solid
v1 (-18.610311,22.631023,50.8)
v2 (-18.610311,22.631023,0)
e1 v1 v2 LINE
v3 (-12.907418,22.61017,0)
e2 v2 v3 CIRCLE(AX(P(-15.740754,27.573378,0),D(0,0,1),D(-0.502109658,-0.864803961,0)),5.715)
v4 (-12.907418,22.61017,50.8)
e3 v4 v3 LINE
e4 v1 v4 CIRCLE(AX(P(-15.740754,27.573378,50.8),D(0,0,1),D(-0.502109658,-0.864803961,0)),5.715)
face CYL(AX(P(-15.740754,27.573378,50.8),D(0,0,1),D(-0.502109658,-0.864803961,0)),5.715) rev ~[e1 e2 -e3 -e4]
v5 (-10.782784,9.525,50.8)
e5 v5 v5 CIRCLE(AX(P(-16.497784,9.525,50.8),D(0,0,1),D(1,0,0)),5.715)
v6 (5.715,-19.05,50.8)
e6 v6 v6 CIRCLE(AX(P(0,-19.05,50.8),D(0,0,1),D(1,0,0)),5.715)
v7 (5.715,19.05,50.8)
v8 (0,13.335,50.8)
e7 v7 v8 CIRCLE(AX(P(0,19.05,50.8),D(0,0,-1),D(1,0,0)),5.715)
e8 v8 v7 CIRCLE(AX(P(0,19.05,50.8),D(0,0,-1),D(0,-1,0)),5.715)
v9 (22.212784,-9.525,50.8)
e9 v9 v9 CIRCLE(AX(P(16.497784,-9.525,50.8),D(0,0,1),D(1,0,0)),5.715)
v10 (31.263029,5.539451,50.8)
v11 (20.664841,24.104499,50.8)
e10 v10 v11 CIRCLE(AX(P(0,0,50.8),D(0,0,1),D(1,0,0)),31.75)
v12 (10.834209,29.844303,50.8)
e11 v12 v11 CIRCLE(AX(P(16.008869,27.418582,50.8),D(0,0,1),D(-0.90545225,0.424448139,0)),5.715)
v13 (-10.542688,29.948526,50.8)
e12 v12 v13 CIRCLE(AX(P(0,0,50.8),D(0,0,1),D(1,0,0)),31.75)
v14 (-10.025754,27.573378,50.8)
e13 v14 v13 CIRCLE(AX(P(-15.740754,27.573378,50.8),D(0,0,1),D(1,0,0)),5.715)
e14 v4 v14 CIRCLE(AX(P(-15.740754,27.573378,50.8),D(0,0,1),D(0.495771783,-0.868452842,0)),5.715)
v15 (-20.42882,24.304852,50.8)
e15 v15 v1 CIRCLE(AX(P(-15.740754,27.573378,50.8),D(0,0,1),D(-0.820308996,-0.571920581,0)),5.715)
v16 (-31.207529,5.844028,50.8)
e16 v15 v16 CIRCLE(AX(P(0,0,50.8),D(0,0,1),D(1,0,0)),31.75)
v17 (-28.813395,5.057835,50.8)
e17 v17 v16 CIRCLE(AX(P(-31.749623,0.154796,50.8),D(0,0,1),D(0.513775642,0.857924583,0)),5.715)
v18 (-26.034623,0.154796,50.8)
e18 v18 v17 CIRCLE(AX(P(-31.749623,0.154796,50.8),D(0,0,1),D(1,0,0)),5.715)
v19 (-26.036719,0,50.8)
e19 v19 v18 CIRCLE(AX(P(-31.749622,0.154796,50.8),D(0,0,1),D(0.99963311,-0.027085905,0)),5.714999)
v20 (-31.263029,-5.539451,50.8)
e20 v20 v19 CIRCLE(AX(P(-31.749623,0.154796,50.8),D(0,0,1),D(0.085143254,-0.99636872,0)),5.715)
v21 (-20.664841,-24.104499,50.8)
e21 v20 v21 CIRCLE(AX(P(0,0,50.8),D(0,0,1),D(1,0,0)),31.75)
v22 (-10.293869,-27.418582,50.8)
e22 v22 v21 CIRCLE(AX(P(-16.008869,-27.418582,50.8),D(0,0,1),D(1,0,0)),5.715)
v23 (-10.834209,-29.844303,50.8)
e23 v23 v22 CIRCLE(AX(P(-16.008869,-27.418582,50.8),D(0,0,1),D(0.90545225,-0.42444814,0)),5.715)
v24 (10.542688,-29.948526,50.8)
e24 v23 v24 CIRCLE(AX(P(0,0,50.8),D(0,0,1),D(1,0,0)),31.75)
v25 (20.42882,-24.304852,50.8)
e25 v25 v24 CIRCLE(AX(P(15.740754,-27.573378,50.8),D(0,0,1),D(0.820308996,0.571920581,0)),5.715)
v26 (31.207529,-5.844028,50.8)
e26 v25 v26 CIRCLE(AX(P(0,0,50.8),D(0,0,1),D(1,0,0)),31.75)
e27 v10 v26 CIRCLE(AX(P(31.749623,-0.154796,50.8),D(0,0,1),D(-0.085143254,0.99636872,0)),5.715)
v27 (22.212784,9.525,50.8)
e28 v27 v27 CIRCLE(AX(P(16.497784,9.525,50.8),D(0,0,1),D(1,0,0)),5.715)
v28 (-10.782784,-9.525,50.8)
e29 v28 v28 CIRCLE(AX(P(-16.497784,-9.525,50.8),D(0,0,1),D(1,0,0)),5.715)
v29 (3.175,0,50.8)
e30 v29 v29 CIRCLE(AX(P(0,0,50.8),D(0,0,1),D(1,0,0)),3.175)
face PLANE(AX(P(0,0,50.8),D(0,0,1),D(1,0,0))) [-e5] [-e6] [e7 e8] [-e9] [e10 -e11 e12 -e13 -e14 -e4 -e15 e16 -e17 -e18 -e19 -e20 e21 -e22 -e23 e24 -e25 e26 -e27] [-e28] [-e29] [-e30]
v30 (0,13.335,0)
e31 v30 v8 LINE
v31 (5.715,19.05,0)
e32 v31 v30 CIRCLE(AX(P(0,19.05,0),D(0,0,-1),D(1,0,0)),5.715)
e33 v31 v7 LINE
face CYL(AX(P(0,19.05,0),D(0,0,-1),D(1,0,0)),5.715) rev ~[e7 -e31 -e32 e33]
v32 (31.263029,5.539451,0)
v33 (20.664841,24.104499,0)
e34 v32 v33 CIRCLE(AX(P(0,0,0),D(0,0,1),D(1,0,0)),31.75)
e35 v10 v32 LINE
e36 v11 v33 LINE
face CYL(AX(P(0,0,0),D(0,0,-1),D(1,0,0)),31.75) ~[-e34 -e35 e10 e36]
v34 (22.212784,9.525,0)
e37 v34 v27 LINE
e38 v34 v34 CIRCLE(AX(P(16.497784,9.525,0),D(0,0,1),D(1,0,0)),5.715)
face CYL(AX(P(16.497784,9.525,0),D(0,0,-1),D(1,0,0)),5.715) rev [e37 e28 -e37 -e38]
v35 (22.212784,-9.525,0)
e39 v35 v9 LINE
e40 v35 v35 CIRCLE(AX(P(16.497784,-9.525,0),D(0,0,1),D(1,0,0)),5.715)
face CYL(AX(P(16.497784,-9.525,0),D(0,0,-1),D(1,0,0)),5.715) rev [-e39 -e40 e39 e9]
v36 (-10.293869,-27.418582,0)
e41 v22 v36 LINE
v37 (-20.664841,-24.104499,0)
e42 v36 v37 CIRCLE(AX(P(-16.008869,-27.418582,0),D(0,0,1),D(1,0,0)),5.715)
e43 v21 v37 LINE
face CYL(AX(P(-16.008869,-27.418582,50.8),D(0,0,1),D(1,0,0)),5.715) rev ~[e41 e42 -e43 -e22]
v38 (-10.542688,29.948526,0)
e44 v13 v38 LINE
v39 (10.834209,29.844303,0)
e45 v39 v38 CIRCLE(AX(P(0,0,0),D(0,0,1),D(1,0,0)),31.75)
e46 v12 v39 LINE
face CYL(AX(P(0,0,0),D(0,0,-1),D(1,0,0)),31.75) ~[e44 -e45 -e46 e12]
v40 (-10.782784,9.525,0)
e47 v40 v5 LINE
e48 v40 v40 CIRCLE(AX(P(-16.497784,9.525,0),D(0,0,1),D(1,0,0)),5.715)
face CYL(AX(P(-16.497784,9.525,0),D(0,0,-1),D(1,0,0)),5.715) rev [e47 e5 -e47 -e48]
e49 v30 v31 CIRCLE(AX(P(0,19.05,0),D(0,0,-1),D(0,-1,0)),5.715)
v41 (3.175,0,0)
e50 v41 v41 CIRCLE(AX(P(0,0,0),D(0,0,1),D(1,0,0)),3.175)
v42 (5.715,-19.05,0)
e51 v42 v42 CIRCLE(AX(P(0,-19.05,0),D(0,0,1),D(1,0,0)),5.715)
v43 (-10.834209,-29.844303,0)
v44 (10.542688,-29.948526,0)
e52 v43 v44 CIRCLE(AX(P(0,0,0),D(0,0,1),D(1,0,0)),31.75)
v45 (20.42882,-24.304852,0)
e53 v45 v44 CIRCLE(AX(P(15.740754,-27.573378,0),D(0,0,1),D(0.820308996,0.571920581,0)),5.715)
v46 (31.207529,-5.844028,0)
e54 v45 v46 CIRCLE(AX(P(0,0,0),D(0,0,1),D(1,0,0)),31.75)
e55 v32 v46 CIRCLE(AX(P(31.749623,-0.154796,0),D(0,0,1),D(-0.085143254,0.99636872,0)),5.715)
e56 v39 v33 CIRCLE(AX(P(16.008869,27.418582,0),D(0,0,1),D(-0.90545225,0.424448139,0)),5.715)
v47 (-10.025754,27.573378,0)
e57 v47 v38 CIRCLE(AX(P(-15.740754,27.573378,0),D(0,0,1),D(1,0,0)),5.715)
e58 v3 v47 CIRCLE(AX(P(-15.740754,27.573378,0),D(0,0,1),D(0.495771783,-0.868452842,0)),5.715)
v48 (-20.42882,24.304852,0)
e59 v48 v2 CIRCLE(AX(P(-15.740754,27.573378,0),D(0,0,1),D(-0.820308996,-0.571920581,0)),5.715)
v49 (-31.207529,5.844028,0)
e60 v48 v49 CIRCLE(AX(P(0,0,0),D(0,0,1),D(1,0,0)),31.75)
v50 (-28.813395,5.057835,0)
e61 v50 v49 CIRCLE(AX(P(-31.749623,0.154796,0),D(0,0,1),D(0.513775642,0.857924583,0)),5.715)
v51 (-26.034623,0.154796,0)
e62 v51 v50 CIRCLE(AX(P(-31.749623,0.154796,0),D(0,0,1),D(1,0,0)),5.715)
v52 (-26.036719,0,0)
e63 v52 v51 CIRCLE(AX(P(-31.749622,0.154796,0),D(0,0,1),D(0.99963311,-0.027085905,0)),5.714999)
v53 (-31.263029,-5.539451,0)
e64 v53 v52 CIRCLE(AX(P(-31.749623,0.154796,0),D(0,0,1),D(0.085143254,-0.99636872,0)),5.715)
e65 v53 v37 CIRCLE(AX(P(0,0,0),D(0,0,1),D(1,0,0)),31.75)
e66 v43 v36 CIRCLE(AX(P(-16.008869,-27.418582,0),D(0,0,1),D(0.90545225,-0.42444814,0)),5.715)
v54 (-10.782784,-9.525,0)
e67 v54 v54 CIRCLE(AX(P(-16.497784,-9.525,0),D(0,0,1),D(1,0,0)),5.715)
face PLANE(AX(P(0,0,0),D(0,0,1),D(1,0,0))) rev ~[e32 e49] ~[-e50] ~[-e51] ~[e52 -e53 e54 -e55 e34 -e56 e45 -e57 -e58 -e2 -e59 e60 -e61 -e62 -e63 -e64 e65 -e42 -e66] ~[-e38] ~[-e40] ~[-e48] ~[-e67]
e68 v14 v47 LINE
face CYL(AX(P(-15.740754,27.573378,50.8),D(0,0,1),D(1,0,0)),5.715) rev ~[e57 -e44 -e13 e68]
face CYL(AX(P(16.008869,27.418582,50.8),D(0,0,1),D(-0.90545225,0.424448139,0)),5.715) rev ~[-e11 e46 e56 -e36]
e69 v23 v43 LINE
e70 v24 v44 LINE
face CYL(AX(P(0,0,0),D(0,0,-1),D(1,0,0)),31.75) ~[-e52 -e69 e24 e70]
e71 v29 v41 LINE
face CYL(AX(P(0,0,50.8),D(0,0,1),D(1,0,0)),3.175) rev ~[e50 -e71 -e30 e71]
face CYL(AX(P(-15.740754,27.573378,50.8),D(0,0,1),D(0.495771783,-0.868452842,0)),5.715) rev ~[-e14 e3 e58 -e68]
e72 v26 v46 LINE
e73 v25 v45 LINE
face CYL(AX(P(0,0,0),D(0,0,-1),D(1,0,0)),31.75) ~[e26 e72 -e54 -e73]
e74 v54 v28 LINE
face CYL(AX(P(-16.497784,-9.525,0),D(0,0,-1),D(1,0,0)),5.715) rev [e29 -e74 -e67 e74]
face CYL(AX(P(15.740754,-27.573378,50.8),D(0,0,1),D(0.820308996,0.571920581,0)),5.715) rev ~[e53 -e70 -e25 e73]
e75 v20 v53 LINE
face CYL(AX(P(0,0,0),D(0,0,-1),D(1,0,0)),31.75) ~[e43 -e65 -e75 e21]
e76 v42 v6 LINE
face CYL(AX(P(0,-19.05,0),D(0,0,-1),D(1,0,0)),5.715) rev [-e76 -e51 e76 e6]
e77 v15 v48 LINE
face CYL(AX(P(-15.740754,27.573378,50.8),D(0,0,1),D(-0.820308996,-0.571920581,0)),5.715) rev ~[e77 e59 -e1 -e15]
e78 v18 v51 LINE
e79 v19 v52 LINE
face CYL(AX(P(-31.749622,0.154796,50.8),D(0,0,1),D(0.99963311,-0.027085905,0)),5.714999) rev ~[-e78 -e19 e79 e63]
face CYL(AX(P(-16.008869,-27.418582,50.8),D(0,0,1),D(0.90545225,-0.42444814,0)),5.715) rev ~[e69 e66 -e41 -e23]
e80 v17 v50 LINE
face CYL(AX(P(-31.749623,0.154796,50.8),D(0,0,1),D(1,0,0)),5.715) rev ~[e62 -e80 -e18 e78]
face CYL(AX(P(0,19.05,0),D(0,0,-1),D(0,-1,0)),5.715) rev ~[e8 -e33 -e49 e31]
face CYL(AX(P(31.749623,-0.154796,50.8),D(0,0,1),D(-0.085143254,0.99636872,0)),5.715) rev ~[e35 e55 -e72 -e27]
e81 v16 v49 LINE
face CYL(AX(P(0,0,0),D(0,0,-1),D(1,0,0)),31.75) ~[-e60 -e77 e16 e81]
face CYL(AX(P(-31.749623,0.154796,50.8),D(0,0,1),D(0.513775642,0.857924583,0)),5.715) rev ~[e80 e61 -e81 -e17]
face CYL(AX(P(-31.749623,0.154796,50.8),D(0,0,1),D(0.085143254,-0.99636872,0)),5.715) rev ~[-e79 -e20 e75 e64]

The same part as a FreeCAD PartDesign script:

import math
import FreeCAD as App
import Part
import Sketcher
Q = App.Units.Quantity

doc = App.newDocument("Part")
body = doc.addObject("PartDesign::Body", "Body")

# Sketch on XY plane
sketch1 = doc.addObject("Sketcher::SketchObject", "Sketch")
body.addObject(sketch1)
sketch1.AttachmentSupport = (doc.XY_Plane, [""])
sketch1.MapMode = "FlatFace"
sketch1.addGeometry([
    Part.Circle(App.Vector(0, 0, 0), App.Vector(0, 0, 1), 32),  # 0
    Part.Circle(App.Vector(-16, -10, 0), App.Vector(0, 0, 1), 6),  # 1
    Part.Circle(App.Vector(0, -19, 0), App.Vector(0, 0, 1), 6),  # 2
    Part.Circle(App.Vector(16, -10, 0), App.Vector(0, 0, 1), 6),  # 3
    Part.Circle(App.Vector(-16, 10, 0), App.Vector(0, 0, 1), 6),  # 4
    Part.ArcOfCircle(Part.Circle(App.Vector(0, 19, 0), App.Vector(0, 0, 1), 6), math.radians(-90), math.radians(0)),  # 5
    Part.ArcOfCircle(Part.Circle(App.Vector(0, 19, 0), App.Vector(0, 0, 1), 6), math.radians(0), math.radians(270)),  # 6
    Part.Circle(App.Vector(16, 10, 0), App.Vector(0, 0, 1), 6),  # 7
], False)
sketch1.addConstraint([
    Sketcher.Constraint("Tangent", 5, 1, 6, 2),
    Sketcher.Constraint("Coincident", 6, 1, 5, 2),
    Sketcher.Constraint("Coincident", 0, 3, -1, 1),
    Sketcher.Constraint("Equal", 1, 2),
    Sketcher.Constraint("Equal", 2, 3),
    Sketcher.Constraint("Equal", 3, 4),
    Sketcher.Constraint("Equal", 4, 5),
    Sketcher.Constraint("Equal", 6, 7),
    Sketcher.Constraint("Symmetric", 3, 3, 4, 3, -1, 1),
    Sketcher.Constraint("Symmetric", 2, 3, 5, 3, -1, 1),
    Sketcher.Constraint("Symmetric", 1, 3, 7, 3, -1, 1),
    Sketcher.Constraint("Symmetric", 1, 3, 3, 3, -2),
    Sketcher.Constraint("PointOnObject", 2, 3, -2),
    Sketcher.Constraint("PointOnObject", 5, 1, -2),
    Sketcher.Constraint("Horizontal", 5, 3, 6, 1),
    Sketcher.Constraint("Diameter", 0, Q("2.5 in")),
    Sketcher.Constraint("Diameter", 1, Q("0.45 in")),
    Sketcher.Constraint("DistanceY", 2, 3, 5, 3, Q("1.5 in")),
    Sketcher.Constraint("DistanceY", 1, 3, 4, 3, Q("0.75 in")),
    Sketcher.Constraint("DistanceX", 1, 3, -1, 1, 16.497784),
])
pad1 = doc.addObject("PartDesign::Pad", "Pad")
body.addObject(pad1)
pad1.Profile = sketch1
pad1.Length = Q("2 in")

# Sketch on XY plane
sketch2 = doc.addObject("Sketcher::SketchObject", "Sketch001")
body.addObject(sketch2)
sketch2.AttachmentSupport = (doc.XY_Plane, [""])
sketch2.MapMode = "FlatFace"
sketch2.AttachmentOffset = App.Placement(App.Vector(0, 0, 2 * 25.4), App.Rotation())
sketch2.addGeometry([
    Part.ArcOfCircle(Part.Circle(App.Vector(16.01, 27.42, 0), App.Vector(0, 0, 1), 5.71), math.radians(0), math.radians(155)),  # 0
    Part.ArcOfCircle(Part.Circle(App.Vector(16.01, 27.42, 0), App.Vector(0, 0, 1), 5.71), math.radians(155), math.radians(360)),  # 1
    Part.ArcOfCircle(Part.Circle(App.Vector(-15.74, 27.57, 0), App.Vector(0, 0, 1), 5.71), math.radians(-60), math.radians(0)),  # 2
    Part.ArcOfCircle(Part.Circle(App.Vector(-15.74, 27.57, 0), App.Vector(0, 0, 1), 5.71), math.radians(0), math.radians(25)),  # 3
    Part.ArcOfCircle(Part.Circle(App.Vector(0, 0, 0), App.Vector(0, 0, 1), 31.75), math.radians(109.39), math.radians(119.72)),  # 4
    Part.ArcOfCircle(Part.Circle(App.Vector(0, 0, 0), App.Vector(0, 0, 1), 31.75), math.radians(119.72), math.radians(130.05)),  # 5
    Part.ArcOfCircle(Part.Circle(App.Vector(-15.74, 27.57, 0), App.Vector(0, 0, 1), 5.72), math.radians(-145), math.radians(-120)),  # 6
    Part.ArcOfCircle(Part.Circle(App.Vector(-15.74, 27.57, 0), App.Vector(0, 0, 1), 5.71), math.radians(-120), math.radians(-60)),  # 7
    Part.ArcOfCircle(Part.Circle(App.Vector(-31.75, 0.15, 0), App.Vector(0, 0, 1), 5.71), math.radians(-1.55), math.radians(0)),  # 8
    Part.ArcOfCircle(Part.Circle(App.Vector(-31.75, 0.15, 0), App.Vector(0, 0, 1), 5.71), math.radians(0), math.radians(59)),  # 9
    Part.ArcOfCircle(Part.Circle(App.Vector(-31.75, 0.15, 0), App.Vector(0, 0, 1), 5.72), math.radians(59), math.radians(85)),  # 10
    Part.ArcOfCircle(Part.Circle(App.Vector(0, 0, 0), App.Vector(0, 0, 1), 31.75), math.radians(169.39), math.radians(180)),  # 11
    Part.ArcOfCircle(Part.Circle(App.Vector(0, 0, 0), App.Vector(0, 0, 1), 31.75), math.radians(180), math.radians(190.05)),  # 12
    Part.ArcOfCircle(Part.Circle(App.Vector(-31.75, 0.15, 0), App.Vector(0, 0, 1), 5.71), math.radians(-85), math.radians(-2)),  # 13
    Part.ArcOfCircle(Part.Circle(App.Vector(-16.01, -27.42, 0), App.Vector(0, 0, 1), 5.71), math.radians(0), math.radians(145)),  # 14
    Part.ArcOfCircle(Part.Circle(App.Vector(0, 0, 0), App.Vector(0, 0, 1), 31.75), math.radians(-131), math.radians(-110)),  # 15
    Part.ArcOfCircle(Part.Circle(App.Vector(-16.01, -27.42, 0), App.Vector(0, 0, 1), 5.71), math.radians(-25), math.radians(0)),  # 16
    Part.ArcOfCircle(Part.Circle(App.Vector(15.74, -27.57, 0), App.Vector(0, 0, 1), 5.71), math.radians(35), math.radians(205)),  # 17
    Part.ArcOfCircle(Part.Circle(App.Vector(0, 0, 0), App.Vector(0, 0, 1), 31.75), math.radians(-71), math.radians(-50)),  # 18
    Part.ArcOfCircle(Part.Circle(App.Vector(0, 0, 0), App.Vector(0, 0, 1), 31.75), math.radians(0), math.radians(10.05)),  # 19
    Part.ArcOfCircle(Part.Circle(App.Vector(31.75, -0.15, 0), App.Vector(0, 0, 1), 5.71), math.radians(95), math.radians(265)),  # 20
    Part.ArcOfCircle(Part.Circle(App.Vector(0, 0, 0), App.Vector(0, 0, 1), 31.75), math.radians(-10.61), math.radians(0)),  # 21
], False)
sketch2.addConstraint([
    Sketcher.Constraint("Tangent", 0, 1, 1, 2),
    Sketcher.Constraint("Coincident", 1, 1, 0, 2),
    Sketcher.Constraint("Tangent", 2, 2, 3, 1),
    Sketcher.Constraint("Coincident", 3, 2, 4, 1),
    Sketcher.Constraint("Tangent", 4, 2, 5, 1),
    Sketcher.Constraint("Coincident", 5, 2, 6, 1),
    Sketcher.Constraint("Tangent", 6, 2, 7, 1),
    Sketcher.Constraint("Tangent", 7, 2, 2, 1),
    Sketcher.Constraint("Tangent", 8, 2, 9, 1),
    Sketcher.Constraint("Tangent", 9, 2, 10, 1),
    Sketcher.Constraint("Coincident", 10, 2, 11, 1),
    Sketcher.Constraint("Tangent", 11, 2, 12, 1),
    Sketcher.Constraint("Coincident", 12, 2, 13, 1),
    Sketcher.Constraint("Tangent", 13, 2, 8, 1),
    Sketcher.Constraint("Coincident", 14, 2, 15, 1),
    Sketcher.Constraint("Coincident", 15, 2, 16, 1),
    Sketcher.Constraint("Tangent", 16, 2, 14, 1),
    Sketcher.Constraint("Coincident", 17, 1, 18, 2),
    Sketcher.Constraint("Coincident", 18, 1, 17, 2),
    Sketcher.Constraint("Coincident", 19, 2, 20, 1),
    Sketcher.Constraint("Coincident", 20, 2, 21, 1),
    Sketcher.Constraint("Tangent", 21, 2, 19, 1),
    Sketcher.Constraint("Coincident", 4, 3, -1, 1),
    Sketcher.Constraint("Coincident", 11, 3, -1, 1),
    Sketcher.Constraint("Coincident", 15, 3, -1, 1),
    Sketcher.Constraint("Coincident", 18, 3, -1, 1),
    Sketcher.Constraint("Coincident", 19, 3, -1, 1),
    Sketcher.Constraint("Coincident", 6, 3, 2, 3),
    Sketcher.Constraint("Coincident", 10, 3, 8, 3),
    Sketcher.Constraint("Coincident", 4, 2, 2, 3),
    Sketcher.Constraint("Equal", 1, 2),
    Sketcher.Constraint("Equal", 2, 3),
    Sketcher.Constraint("Equal", 4, 5),
    Sketcher.Constraint("Equal", 7, 8),
    Sketcher.Constraint("Equal", 5, 11),
    Sketcher.Constraint("Equal", 11, 12),
    Sketcher.Constraint("Equal", 10, 13),
    Sketcher.Constraint("Equal", 13, 14),
    Sketcher.Constraint("Equal", 12, 15),
    Sketcher.Constraint("Equal", 14, 16),
    Sketcher.Constraint("Equal", 16, 17),
    Sketcher.Constraint("Equal", 15, 18),
    Sketcher.Constraint("Equal", 18, 19),
    Sketcher.Constraint("Equal", 17, 20),
    Sketcher.Constraint("Equal", 19, 21),
    Sketcher.Constraint("Symmetric", 0, 3, 14, 3, -1, 1),
    Sketcher.Constraint("Symmetric", 2, 3, 17, 3, -1, 1),
    Sketcher.Constraint("Symmetric", 8, 3, 20, 3, -1, 1),
    Sketcher.Constraint("PointOnObject", 11, 2, -1),
    Sketcher.Constraint("PointOnObject", 13, 2, -1),
    Sketcher.Constraint("PointOnObject", 21, 2, -1),
    Sketcher.Constraint("Horizontal", 1, 3, 0, 1),
    Sketcher.Constraint("Horizontal", 7, 3, 2, 2),
    Sketcher.Constraint("Horizontal", 13, 3, 8, 2),
    Sketcher.Constraint("Horizontal", 14, 3, 16, 2),
    Sketcher.Constraint("Radius", 4, Q("1.25 in")),
    Sketcher.Constraint("Radius", 0, Q("0.225 in")),
    Sketcher.Constraint("DistanceY", 14, 2, -1, 1, 24.104499),
    Sketcher.Constraint("DistanceX", 20, 2, 19, 2, 0.0555),
    Sketcher.Constraint("DistanceX", -1, 1, 0, 3, 16.008869),
    Sketcher.Constraint("DistanceX", 8, 3, -1, 1, 31.749622),
    Sketcher.Constraint("DistanceX", -1, 1, 1, 1, 10.834209),
    Sketcher.Constraint("DistanceX", 5, 2, -1, 1, 20.42882),
    Sketcher.Constraint("DistanceX", 6, 2, -1, 1, 18.610311),
    Sketcher.Constraint("DistanceX", 7, 2, -1, 1, 12.907418),
    Sketcher.Constraint("DistanceY", 8, 2, 9, 2, 4.903039),
])
pocket1 = doc.addObject("PartDesign::Pocket", "Pocket")
body.addObject(pocket1)
pocket1.Profile = sketch2
pocket1.Length = Q("3 in")

# Sketch on XY plane
sketch3 = doc.addObject("Sketcher::SketchObject", "Sketch002")
body.addObject(sketch3)
sketch3.AttachmentSupport = (doc.XY_Plane, [""])
sketch3.MapMode = "FlatFace"
sketch3.AttachmentOffset = App.Placement(App.Vector(0, 0, 2 * 25.4), App.Rotation())
sketch3.addGeometry(Part.Circle(App.Vector(0, 0, 0), App.Vector(0, 0, 1), 3.2), False)
sketch3.addConstraint([
    Sketcher.Constraint("Coincident", 0, 3, -1, 1),
    Sketcher.Constraint("Diameter", 0, Q("0.25 in")),
])
pocket2 = doc.addObject("PartDesign::Pocket", "Pocket001")
body.addObject(pocket2)
pocket2.Profile = sketch3
pocket2.Length = Q("3 in")

doc.recompute()
